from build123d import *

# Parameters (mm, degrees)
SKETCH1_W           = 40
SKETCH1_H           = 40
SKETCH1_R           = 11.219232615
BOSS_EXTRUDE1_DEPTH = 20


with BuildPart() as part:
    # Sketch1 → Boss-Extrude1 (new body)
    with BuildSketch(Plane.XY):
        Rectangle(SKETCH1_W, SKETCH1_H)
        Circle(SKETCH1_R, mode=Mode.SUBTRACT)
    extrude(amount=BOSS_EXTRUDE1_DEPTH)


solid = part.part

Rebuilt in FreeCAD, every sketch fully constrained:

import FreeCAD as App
import Part
import Sketcher
from FreeCAD import Vector
Q = App.Units.Quantity

doc = App.newDocument("Part")
body = doc.addObject("PartDesign::Body", "Body")

# Sketch on XY plane
sketch1 = body.newObject("Sketcher::SketchObject", "Sketch")
sketch1.AttachmentSupport = (doc.getObject("XY_Plane"), [""])
sketch1.MapMode = "FlatFace"
sketch1.addGeometry([
    Part.LineSegment(Vector(-20, 20, 0), Vector(-20, -20, 0)),  # 0
    Part.LineSegment(Vector(-20, -20, 0), Vector(20, -20, 0)),  # 1
    Part.LineSegment(Vector(20, -20, 0), Vector(20, 20, 0)),  # 2
    Part.LineSegment(Vector(20, 20, 0), Vector(-20, 20, 0)),  # 3
    Part.Circle(Vector(0, 0, 0), Vector(0, 0, 1), 11),  # 4
], False)
sketch1.addConstraint([
    Sketcher.Constraint("Coincident", 0, 2, 1, 1),
    Sketcher.Constraint("Coincident", 1, 2, 2, 1),
    Sketcher.Constraint("Coincident", 2, 2, 3, 1),
    Sketcher.Constraint("Coincident", 3, 2, 0, 1),
    Sketcher.Constraint("Vertical", 0),
    Sketcher.Constraint("Horizontal", 1),
    Sketcher.Constraint("Vertical", 2),
    Sketcher.Constraint("Horizontal", 3),
    Sketcher.Constraint("Coincident", 4, 3, -1, 1),
    Sketcher.Constraint("Symmetric", 0, 2, 2, 2, -1, 1),
    Sketcher.Constraint("Equal", 3, 0),
    Sketcher.Constraint("DistanceX", 1, 1, 1, 2, Q("40 mm")),
    Sketcher.Constraint("Diameter", 4, Q("22.438465 mm")),
])
pad1 = body.newObject("PartDesign::Pad", "Pad")
pad1.Profile = sketch1
pad1.Length = 20

doc.recompute()
